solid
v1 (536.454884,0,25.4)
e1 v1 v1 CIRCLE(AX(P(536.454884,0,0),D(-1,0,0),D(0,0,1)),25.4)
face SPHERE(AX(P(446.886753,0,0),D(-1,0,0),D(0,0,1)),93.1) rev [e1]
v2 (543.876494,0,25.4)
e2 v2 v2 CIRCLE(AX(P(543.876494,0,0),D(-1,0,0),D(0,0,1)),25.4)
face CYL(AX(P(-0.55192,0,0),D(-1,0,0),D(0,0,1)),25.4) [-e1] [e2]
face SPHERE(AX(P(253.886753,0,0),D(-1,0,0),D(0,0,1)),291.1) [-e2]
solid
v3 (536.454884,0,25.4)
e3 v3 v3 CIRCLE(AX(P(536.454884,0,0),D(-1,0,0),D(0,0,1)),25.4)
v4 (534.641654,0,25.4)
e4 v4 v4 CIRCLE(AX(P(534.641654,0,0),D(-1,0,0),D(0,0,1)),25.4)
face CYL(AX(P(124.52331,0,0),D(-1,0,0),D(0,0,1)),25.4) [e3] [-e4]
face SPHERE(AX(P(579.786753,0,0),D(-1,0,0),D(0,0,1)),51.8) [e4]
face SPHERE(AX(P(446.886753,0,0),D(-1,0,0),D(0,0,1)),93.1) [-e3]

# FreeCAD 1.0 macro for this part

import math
import FreeCAD as App
import Part
import Sketcher
from FreeCAD import Vector

doc = App.newDocument("Part")
params = doc.addObject("Spreadsheet::Sheet", "Params")
for row, (alias, value) in enumerate([
    ("sketch1_radius", "51.8 mm"),
    ("sketch1_radius2", "93.1 mm"),
    ("sketch1_width", "12 mm"),
    ("revolution_angle", "360 deg"),
    ("sketch2_radius", "93.1 mm"),
    ("sketch2_radius2", "291.1 mm"),
    ("sketch2_width", "5 mm"),
    ("revolution2_angle", "360 deg"),
], start=1):
    params.set(f"A{row}", alias)
    params.set(f"B{row}", "=" + value)
    params.setAlias(f"B{row}", alias)

body = doc.addObject("PartDesign::Body", "Body")

# Sketch on XZ plane
sketch1 = body.newObject("Sketcher::SketchObject", "Sketch")
sketch1.AttachmentSupport = (doc.getObject("XZ_Plane"), [""])
sketch1.MapMode = "FlatFace"
sketch1.addGeometry(Part.ArcOfCircle(Part.Circle(Vector(579.8, 0, 0), Vector(0, 0, 1), 51.8), math.radians(-180), math.radians(-151)), False)
sketch1.addGeometry(Part.LineSegment(Vector(528, 0, 0), Vector(540, 0, 0)), False)
sketch1.addGeometry(Part.ArcOfCircle(Part.Circle(Vector(446.9, 0, 0), Vector(0, 0, 1), 93.1), math.radians(-15.83), math.radians(0)), False)
sketch1.addGeometry(Part.LineSegment(Vector(536.5, -25.4, 0), Vector(534.6, -25.4, 0)), False)
sketch1.addConstraint(Sketcher.Constraint("Coincident", 0, 1, 1, 1))
sketch1.addConstraint(Sketcher.Constraint("Coincident", 1, 2, 2, 2))
sketch1.addConstraint(Sketcher.Constraint("Coincident", 2, 1, 3, 1))
sketch1.addConstraint(Sketcher.Constraint("Coincident", 3, 2, 0, 2))
sketch1.addConstraint(Sketcher.Constraint("Horizontal", 1))
sketch1.addConstraint(Sketcher.Constraint("Horizontal", 3))
sketch1.addConstraint(Sketcher.Constraint("PointOnObject", 0, 3, -1))
sketch1.addConstraint(Sketcher.Constraint("PointOnObject", 2, 3, -1))
sketch1.addConstraint(Sketcher.Constraint("PointOnObject", 0, 1, -1))
sketch1.addConstraint(Sketcher.Constraint("Radius", 0, 51.8))
sketch1.addConstraint(Sketcher.Constraint("Radius", 2, 93.1))
sketch1.addConstraint(Sketcher.Constraint("DistanceX", 1, 1, 1, 2, 12.0))
sketch1.addConstraint(Sketcher.Constraint("DistanceY", 2, 1, -1, 1, 25.4))
sketch1.addConstraint(Sketcher.Constraint("DistanceX", -1, 1, 0, 3, 579.786753))
sketch1.setExpression("Constraints[9]", "Params.sketch1_radius")
sketch1.setExpression("Constraints[10]", "Params.sketch1_radius2")
sketch1.setExpression("Constraints[11]", "Params.sketch1_width")
revolution = body.newObject("PartDesign::Revolution", "Revolution")
revolution.Profile = sketch1
revolution.ReferenceAxis = (sketch1, ["H_Axis"])
revolution.setExpression("Angle", "Params.revolution_angle")
body2 = doc.addObject("PartDesign::Body", "Body001")

# Sketch on XZ plane
sketch2 = body2.newObject("Sketcher::SketchObject", "Sketch001")
sketch2.AttachmentSupport = (doc.getObject("XZ_Plane001"), [""])
sketch2.MapMode = "FlatFace"
sketch2.addGeometry(Part.LineSegment(Vector(544, -25, 0), Vector(536, -25, 0)), False)
sketch2.addGeometry(Part.ArcOfCircle(Part.Circle(Vector(447, 0, 0), Vector(0, 0, 1), 93), math.radians(-15.83), math.radians(0)), False)
sketch2.addGeometry(Part.LineSegment(Vector(540, 0, 0), Vector(545, 0, 0)), False)
sketch2.addGeometry(Part.ArcOfCircle(Part.Circle(Vector(254, 0, 0), Vector(0, 0, 1), 291), math.radians(-5.01), math.radians(0)), False)
sketch2.addConstraint(Sketcher.Constraint("Coincident", 0, 2, 1, 1))
sketch2.addConstraint(Sketcher.Constraint("Coincident", 1, 2, 2, 1))
sketch2.addConstraint(Sketcher.Constraint("Coincident", 2, 2, 3, 2))
sketch2.addConstraint(Sketcher.Constraint("Coincident", 3, 1, 0, 1))
sketch2.addConstraint(Sketcher.Constraint("Horizontal", 0))
sketch2.addConstraint(Sketcher.Constraint("Horizontal", 2))
sketch2.addConstraint(Sketcher.Constraint("PointOnObject", 1, 3, -1))
sketch2.addConstraint(Sketcher.Constraint("PointOnObject", 3, 3, -1))
sketch2.addConstraint(Sketcher.Constraint("PointOnObject", 1, 2, -1))
sketch2.addConstraint(Sketcher.Constraint("Radius", 1, 93.1))
sketch2.addConstraint(Sketcher.Constraint("Radius", 3, 291.1))
sketch2.addConstraint(Sketcher.Constraint("DistanceX", 2, 1, 2, 2, 5.0))
sketch2.addConstraint(Sketcher.Constraint("DistanceY", 0, 2, -1, 1, 25.4))
sketch2.addConstraint(Sketcher.Constraint("DistanceX", -1, 1, 1, 3, 446.886753))
sketch2.setExpression("Constraints[9]", "Params.sketch2_radius")
sketch2.setExpression("Constraints[10]", "Params.sketch2_radius2")
sketch2.setExpression("Constraints[11]", "Params.sketch2_width")
revolution2 = body2.newObject("PartDesign::Revolution", "Revolution001")
revolution2.Profile = sketch2
revolution2.ReferenceAxis = (sketch2, ["H_Axis"])
revolution2.setExpression("Angle", "Params.revolution2_angle")

doc.recompute()
